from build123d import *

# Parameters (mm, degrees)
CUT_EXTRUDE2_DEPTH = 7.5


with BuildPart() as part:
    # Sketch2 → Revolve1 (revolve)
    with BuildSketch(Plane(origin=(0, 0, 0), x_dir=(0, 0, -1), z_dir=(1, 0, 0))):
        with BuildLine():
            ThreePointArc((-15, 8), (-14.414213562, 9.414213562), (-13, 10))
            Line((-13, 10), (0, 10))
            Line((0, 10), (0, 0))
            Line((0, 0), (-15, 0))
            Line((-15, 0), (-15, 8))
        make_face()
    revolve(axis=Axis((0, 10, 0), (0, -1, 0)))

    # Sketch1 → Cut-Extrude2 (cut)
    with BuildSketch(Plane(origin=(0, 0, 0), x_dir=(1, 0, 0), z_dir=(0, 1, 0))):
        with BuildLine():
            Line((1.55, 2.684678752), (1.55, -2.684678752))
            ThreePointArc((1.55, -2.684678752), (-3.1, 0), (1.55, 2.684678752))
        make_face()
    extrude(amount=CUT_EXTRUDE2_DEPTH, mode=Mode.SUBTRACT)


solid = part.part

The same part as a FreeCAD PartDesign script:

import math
import FreeCAD as App
import Part
import Sketcher
Q = App.Units.Quantity

doc = App.newDocument("Part")
body = doc.addObject("PartDesign::Body", "Body")

# Sketch on YZ plane
sketch1 = body.newObject("Sketcher::SketchObject", "Sketch")
sketch1.AttachmentSupport = (doc.getObject("YZ_Plane"), [""])
sketch1.MapMode = "FlatFace"
sketch1.addGeometry([
    Part.ArcOfCircle(Part.Circle(App.Vector(8, 13, 0), App.Vector(0, 0, 1), 2), math.radians(0), math.radians(90)),  # 0
    Part.LineSegment(App.Vector(8, 15, 0), App.Vector(0, 15, 0)),  # 1
    Part.LineSegment(App.Vector(0, 15, 0), App.Vector(0, 0, 0)),  # 2
    Part.LineSegment(App.Vector(0, 0, 0), App.Vector(10, 0, 0)),  # 3
    Part.LineSegment(App.Vector(10, 0, 0), App.Vector(10, 13, 0)),  # 4
], False)
sketch1.addConstraint([
    Sketcher.Constraint("Tangent", 0, 2, 1, 1),
    Sketcher.Constraint("Coincident", 1, 2, 2, 1),
    Sketcher.Constraint("Coincident", 2, 2, 3, 1),
    Sketcher.Constraint("Coincident", 3, 2, 4, 1),
    Sketcher.Constraint("Tangent", 4, 2, 0, 1),
    Sketcher.Constraint("Horizontal", 1),
    Sketcher.Constraint("Vertical", 2),
    Sketcher.Constraint("Horizontal", 3),
    Sketcher.Constraint("Vertical", 4),
    Sketcher.Constraint("Coincident", 2, 2, -1, 1),
    Sketcher.Constraint("Radius", 0, Q("2 mm")),
    Sketcher.Constraint("DistanceX", 1, 2, 1, 1, Q("8 mm")),
    Sketcher.Constraint("DistanceY", 2, 2, 2, 1, Q("15 mm")),
])
revolution = body.newObject("PartDesign::Revolution", "Revolution")
revolution.Profile = sketch1
revolution.ReferenceAxis = (sketch1, ["H_Axis"])
revolution.Angle = 360

# Sketch on XZ plane
sketch2 = body.newObject("Sketcher::SketchObject", "Sketch001")
sketch2.AttachmentSupport = (doc.getObject("XZ_Plane"), [""])
sketch2.MapMode = "FlatFace"
sketch2.addGeometry([
    Part.LineSegment(App.Vector(1.55, 2.684679, 0), App.Vector(1.55, -2.684679, 0)),
    Part.ArcOfCircle(Part.Circle(App.Vector(0, 0, 0), App.Vector(0, 0, 1), 3.1), math.radians(60), math.radians(300)),
], False)
sketch2.addConstraint([
    Sketcher.Constraint("Coincident", 0, 1, 1, 1),
    Sketcher.Constraint("Coincident", 1, 2, 0, 2),
    Sketcher.Constraint("Vertical", 0),
    Sketcher.Constraint("Coincident", 1, 3, -1, 1),
    Sketcher.Constraint("Radius", 1, Q("3.1 mm")),
    Sketcher.Constraint("DistanceX", -1, 1, 0, 1, Q("1.55 mm")),
])
pocket1 = body.newObject("PartDesign::Pocket", "Pocket")
pocket1.Profile = sketch2
pocket1.Length = 7.5

doc.recompute()
